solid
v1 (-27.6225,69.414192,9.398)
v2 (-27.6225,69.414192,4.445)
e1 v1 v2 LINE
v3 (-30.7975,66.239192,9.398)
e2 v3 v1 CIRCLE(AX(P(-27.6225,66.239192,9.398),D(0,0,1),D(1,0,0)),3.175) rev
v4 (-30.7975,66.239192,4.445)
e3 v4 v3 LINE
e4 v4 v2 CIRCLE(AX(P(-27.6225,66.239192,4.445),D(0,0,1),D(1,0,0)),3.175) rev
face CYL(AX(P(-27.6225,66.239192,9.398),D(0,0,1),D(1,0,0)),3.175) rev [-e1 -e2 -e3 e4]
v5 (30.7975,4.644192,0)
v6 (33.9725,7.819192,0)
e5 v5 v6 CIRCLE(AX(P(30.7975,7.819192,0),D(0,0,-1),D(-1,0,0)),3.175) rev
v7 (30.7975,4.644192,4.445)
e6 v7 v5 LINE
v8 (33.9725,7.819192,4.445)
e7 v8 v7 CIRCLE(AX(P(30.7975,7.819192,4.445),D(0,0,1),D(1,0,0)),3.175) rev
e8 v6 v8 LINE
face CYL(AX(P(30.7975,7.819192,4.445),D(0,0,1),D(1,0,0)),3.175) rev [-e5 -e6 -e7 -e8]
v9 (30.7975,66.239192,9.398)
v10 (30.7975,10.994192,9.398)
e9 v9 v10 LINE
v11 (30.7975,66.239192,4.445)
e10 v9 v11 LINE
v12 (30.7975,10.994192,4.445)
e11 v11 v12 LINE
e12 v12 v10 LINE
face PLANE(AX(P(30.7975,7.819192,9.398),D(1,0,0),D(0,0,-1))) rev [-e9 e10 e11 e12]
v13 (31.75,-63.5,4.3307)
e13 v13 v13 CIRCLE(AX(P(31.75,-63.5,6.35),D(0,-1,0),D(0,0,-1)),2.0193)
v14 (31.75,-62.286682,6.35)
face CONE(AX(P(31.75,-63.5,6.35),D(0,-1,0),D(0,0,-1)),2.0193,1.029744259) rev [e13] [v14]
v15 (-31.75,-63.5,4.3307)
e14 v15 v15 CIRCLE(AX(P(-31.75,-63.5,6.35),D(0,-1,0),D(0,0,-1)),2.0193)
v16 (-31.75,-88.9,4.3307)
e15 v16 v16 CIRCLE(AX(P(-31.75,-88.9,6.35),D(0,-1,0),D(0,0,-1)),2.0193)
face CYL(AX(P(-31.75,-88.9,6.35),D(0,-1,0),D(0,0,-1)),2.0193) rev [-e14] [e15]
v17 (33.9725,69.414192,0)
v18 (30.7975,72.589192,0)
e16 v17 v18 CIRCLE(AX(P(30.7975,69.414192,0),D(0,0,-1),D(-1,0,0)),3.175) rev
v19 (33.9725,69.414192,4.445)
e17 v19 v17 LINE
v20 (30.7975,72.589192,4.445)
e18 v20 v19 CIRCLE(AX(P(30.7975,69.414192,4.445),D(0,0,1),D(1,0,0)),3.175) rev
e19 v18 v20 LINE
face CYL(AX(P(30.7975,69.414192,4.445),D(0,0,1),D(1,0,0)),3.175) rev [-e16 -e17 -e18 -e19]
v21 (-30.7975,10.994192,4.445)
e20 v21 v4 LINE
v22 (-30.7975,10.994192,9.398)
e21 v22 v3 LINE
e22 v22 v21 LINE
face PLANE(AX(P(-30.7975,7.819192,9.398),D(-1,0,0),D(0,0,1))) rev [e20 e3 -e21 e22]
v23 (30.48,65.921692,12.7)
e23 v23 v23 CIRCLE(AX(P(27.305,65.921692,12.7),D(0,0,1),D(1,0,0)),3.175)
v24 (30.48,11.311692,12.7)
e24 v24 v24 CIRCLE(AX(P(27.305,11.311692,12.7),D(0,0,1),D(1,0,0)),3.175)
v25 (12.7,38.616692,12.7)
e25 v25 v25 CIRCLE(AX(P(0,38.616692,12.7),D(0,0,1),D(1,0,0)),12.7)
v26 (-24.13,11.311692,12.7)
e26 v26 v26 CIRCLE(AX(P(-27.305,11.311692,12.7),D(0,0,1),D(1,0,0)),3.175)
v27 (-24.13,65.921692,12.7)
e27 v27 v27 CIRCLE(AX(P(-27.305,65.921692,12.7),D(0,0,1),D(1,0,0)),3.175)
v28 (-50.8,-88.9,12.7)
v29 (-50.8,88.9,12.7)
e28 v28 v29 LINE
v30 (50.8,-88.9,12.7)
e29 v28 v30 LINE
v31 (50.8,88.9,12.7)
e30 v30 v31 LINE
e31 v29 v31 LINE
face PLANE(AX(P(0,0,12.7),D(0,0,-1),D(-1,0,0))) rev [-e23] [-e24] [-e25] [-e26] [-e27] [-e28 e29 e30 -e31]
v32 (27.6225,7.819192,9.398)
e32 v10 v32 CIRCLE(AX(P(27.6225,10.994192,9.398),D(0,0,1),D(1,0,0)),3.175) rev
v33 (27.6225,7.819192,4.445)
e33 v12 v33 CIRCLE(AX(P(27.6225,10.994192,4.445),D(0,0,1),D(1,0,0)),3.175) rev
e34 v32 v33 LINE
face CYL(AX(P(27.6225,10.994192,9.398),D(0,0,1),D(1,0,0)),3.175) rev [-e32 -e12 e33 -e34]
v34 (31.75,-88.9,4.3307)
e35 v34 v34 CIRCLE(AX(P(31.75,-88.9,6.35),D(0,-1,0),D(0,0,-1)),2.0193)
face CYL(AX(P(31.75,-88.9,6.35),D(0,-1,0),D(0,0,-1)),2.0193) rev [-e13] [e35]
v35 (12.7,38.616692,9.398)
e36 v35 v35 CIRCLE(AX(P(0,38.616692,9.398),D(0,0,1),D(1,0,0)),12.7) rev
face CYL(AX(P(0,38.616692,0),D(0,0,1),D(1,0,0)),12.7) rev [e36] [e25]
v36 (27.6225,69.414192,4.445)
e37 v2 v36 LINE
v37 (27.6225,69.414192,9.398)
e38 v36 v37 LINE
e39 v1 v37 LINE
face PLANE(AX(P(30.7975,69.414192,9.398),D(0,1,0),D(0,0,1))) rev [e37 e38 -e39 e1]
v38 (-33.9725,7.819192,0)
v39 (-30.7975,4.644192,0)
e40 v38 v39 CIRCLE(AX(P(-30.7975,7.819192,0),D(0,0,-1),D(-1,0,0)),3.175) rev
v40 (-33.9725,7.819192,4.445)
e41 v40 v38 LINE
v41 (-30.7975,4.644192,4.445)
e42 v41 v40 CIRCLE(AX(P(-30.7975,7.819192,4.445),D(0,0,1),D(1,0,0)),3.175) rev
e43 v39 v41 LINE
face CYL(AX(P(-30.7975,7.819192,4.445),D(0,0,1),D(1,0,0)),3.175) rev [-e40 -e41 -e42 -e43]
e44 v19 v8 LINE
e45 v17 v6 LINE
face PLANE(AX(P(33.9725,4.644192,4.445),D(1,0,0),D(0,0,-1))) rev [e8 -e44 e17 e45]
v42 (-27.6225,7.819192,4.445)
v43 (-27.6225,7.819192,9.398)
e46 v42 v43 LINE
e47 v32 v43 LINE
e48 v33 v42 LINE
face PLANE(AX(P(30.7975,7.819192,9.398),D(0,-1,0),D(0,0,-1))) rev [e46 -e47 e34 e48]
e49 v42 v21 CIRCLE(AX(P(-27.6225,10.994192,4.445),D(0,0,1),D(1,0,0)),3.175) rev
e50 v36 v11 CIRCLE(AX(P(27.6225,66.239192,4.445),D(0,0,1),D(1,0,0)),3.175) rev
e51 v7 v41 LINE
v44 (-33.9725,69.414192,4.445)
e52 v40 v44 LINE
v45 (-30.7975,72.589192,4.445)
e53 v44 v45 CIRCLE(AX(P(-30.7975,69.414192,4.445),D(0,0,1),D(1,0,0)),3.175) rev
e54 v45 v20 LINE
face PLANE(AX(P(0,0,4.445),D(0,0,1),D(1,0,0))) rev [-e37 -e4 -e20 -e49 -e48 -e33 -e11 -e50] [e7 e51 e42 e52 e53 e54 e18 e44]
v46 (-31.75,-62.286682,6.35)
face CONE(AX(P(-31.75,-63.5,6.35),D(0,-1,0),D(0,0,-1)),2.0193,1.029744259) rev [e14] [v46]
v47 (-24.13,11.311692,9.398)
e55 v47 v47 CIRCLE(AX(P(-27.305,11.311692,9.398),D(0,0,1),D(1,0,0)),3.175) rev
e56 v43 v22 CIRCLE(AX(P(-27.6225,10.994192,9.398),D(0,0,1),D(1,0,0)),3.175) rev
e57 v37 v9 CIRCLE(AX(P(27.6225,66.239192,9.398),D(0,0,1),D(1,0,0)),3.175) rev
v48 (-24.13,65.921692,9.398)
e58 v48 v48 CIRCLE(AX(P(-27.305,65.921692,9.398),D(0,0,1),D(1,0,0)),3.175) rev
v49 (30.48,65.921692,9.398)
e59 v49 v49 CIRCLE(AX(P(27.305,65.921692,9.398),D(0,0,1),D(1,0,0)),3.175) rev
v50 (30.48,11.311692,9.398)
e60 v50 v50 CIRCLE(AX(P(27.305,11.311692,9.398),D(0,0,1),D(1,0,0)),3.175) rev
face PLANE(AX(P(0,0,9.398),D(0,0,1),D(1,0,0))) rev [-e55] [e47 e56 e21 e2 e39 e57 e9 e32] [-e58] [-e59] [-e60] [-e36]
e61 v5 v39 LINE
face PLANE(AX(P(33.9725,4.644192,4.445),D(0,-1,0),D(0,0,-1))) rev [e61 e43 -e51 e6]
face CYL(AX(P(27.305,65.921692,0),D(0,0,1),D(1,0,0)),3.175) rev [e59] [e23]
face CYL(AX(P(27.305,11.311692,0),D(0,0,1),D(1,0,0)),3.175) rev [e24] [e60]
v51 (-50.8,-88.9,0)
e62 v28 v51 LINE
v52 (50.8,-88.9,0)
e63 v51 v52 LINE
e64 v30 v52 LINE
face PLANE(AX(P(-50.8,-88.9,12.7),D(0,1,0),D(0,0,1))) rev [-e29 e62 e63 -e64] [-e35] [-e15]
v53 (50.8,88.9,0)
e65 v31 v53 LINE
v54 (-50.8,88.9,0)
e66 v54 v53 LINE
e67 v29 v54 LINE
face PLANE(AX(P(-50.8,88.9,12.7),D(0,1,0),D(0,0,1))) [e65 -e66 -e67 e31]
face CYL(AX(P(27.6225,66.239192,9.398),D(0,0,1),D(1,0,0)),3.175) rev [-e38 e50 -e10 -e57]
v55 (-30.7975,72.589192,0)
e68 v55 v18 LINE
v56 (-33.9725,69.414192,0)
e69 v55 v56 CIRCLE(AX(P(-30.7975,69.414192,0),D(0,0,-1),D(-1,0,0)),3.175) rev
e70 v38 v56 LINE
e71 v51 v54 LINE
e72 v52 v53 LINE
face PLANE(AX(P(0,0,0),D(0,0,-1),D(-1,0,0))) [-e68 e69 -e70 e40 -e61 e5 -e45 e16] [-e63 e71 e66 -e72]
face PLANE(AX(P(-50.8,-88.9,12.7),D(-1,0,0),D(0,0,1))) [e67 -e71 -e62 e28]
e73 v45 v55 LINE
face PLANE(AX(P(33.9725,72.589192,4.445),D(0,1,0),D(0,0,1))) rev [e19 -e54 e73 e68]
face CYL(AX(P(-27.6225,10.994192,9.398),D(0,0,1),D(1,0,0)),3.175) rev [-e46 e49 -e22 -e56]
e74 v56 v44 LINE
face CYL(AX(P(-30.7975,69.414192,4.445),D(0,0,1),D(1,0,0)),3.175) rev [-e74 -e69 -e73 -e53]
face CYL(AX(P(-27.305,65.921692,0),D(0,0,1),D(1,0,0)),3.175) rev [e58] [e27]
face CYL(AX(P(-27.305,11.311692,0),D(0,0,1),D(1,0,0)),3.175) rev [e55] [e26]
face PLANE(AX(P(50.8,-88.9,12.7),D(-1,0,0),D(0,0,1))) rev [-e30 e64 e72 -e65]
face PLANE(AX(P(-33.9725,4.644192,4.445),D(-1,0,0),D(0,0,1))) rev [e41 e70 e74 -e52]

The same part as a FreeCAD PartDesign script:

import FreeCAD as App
import Part
import Sketcher
from FreeCAD import Vector
Q = App.Units.Quantity


def edges_at(feature, points):
    """Names of the edges that pass closest to the given points."""
    edges = feature.Shape.Edges
    near = lambda p: min(range(len(edges)), key=lambda i: edges[i].distToShape(Part.Vertex(*p))[0])
    return sorted({f"Edge{near(p) + 1}" for p in points})


def add_polygon(sketch, points):
    """Adds a closed chain of lines whose ends are joined by coincident constraints."""
    first, n = sketch.GeometryCount, len(points)
    for a, b in zip(points, points[1:] + points[:1]):
        sketch.addGeometry(Part.LineSegment(App.Vector(*a, 0), App.Vector(*b, 0)), False)
    for i in range(n):
        sketch.addConstraint(Sketcher.Constraint("Coincident", first + i, 2, first + (i + 1) % n, 1))

doc = App.newDocument("Part")
body = doc.addObject("PartDesign::Body", "Body")

sketch1 = doc.addObject("Sketcher::SketchObject", "Sketch")
body.addObject(sketch1)
sketch1.AttachmentSupport = (doc.XY_Plane, [""])
sketch1.MapMode = "FlatFace"
add_polygon(sketch1, [(-51, 89), (-51, -89), (51, -89), (51, 89)])
sketch1.addConstraint([
    Sketcher.Constraint("Vertical", 0),
    Sketcher.Constraint("Horizontal", 1),
    Sketcher.Constraint("Vertical", 2),
    Sketcher.Constraint("Horizontal", 3),
    Sketcher.Constraint("Symmetric", 0, 2, 2, 2, -1, 1),
    Sketcher.Constraint("DistanceX", 1, 1, 1, 2, Q("4 in")),
    Sketcher.Constraint("DistanceY", 0, 2, 0, 1, Q("7 in")),
])
pad1 = doc.addObject("PartDesign::Pad", "Pad")
body.addObject(pad1)
pad1.Profile = sketch1
pad1.Length = Q("0.5 in")

sketch2 = doc.addObject("Sketcher::SketchObject", "Sketch001")
body.addObject(sketch2)
sketch2.AttachmentSupport = (doc.XZ_Plane, [""])
sketch2.MapMode = "FlatFace"
sketch2.AttachmentOffset = App.Placement(Vector(0, 0, 3.5 * 25.4), App.Rotation())
sketch2.addGeometry([
    Part.Circle(Vector(-31.8, 6.3, 0), Vector(0, 0, 1), 2),
    Part.Circle(Vector(31.8, 6.3, 0), Vector(0, 0, 1), 2),
], False)
sketch2.addConstraint([
    Sketcher.Constraint("Equal", 0, 1),
    Sketcher.Constraint("Symmetric", 0, 3, 1, 3, -2),
    Sketcher.Constraint("Diameter", 0, Q("0.159 in")),
    Sketcher.Constraint("DistanceX", 0, 3, 1, 3, Q("2.5 in")),
    Sketcher.Constraint("DistanceY", -1, 1, 0, 3, Q("0.25 in")),
])
doc.recompute()
hole = doc.addObject("PartDesign::Hole", "Hole")
body.addObject(hole)
hole.Profile = sketch2
hole.ThreadType = "None"
hole.Diameter = Q("0.159 in")
hole.DepthType = "Dimension"
hole.Depth = Q("1 in")
hole.DrillPoint = "Angled"
hole.DrillPointAngle = 118

sketch3 = doc.addObject("Sketcher::SketchObject", "Sketch002")
body.addObject(sketch3)
sketch3.AttachmentSupport = (doc.XY_Plane, [""])
sketch3.MapMode = "FlatFace"
sketch3.AttachmentOffset = App.Placement(Vector(0, 0, 0.5 * 25.4), App.Rotation())
sketch3.addGeometry([
    Part.Circle(Vector(0, 38.6, 0), Vector(0, 0, 1), 12.7),
    Part.Circle(Vector(-27.3, 65.9, 0), Vector(0, 0, 1), 3.2),
    Part.Circle(Vector(27.3, 65.9, 0), Vector(0, 0, 1), 3.2),
    Part.Circle(Vector(27.3, 11.3, 0), Vector(0, 0, 1), 3.2),
    Part.Circle(Vector(-27.3, 11.3, 0), Vector(0, 0, 1), 3.2),
], False)
sketch3.addConstraint([
    Sketcher.Constraint("Equal", 1, 2),
    Sketcher.Constraint("Equal", 2, 3),
    Sketcher.Constraint("Equal", 3, 4),
    Sketcher.Constraint("Symmetric", 1, 3, 2, 3, -2),
    Sketcher.Constraint("Symmetric", 3, 3, 4, 3, -2),
    Sketcher.Constraint("PointOnObject", 0, 3, -2),
    Sketcher.Constraint("Vertical", 2, 3, 3, 3),
    Sketcher.Constraint("Diameter", 0, Q("1 in")),
    Sketcher.Constraint("Diameter", 1, Q("0.25 in")),
    Sketcher.Constraint("DistanceX", 1, 3, 2, 3, Q("2.15 in")),
    Sketcher.Constraint("DistanceY", 3, 3, 2, 3, Q("2.15 in")),
    Sketcher.Constraint("DistanceY", 0, 3, 1, 3, Q("1.075 in")),
    Sketcher.Constraint("DistanceY", -1, 1, 0, 3, 38.616692),
])
pocket1 = doc.addObject("PartDesign::Pocket", "Pocket")
body.addObject(pocket1)
pocket1.Profile = sketch3
pocket1.Type = "ThroughAll"

sketch4 = doc.addObject("Sketcher::SketchObject", "Sketch003")
body.addObject(sketch4)
sketch4.AttachmentSupport = (doc.XY_Plane, [""])
sketch4.MapMode = "FlatFace"
add_polygon(sketch4, [(31, 69), (31, 8), (-31, 8), (-31, 69)])
sketch4.addConstraint([
    Sketcher.Constraint("Vertical", 0),
    Sketcher.Constraint("Horizontal", 1),
    Sketcher.Constraint("Vertical", 2),
    Sketcher.Constraint("Horizontal", 3),
    Sketcher.Constraint("Equal", 3, 0),
    Sketcher.Constraint("DistanceX", 1, 2, 1, 1, Q("2.425 in")),
    Sketcher.Constraint("DistanceX", -1, 1, 0, 2, Q("1.2125 in")),
    Sketcher.Constraint("DistanceY", -1, 1, 0, 2, 7.819192),
])
pocket2 = doc.addObject("PartDesign::Pocket", "Pocket001")
body.addObject(pocket2)
pocket2.Profile = sketch4
pocket2.Length = Q("0.37 in")
pocket2.Reversed = True
doc.recompute()

fillet = doc.addObject("PartDesign::Fillet", "Fillet")
body.addObject(fillet)
fillet.Base = (pocket2, edges_at(pocket2, [
    (-30.797, 69.414, 4.699),
    (-30.797, 7.819, 4.699),
    (30.797, 7.819, 4.699),
    (30.797, 69.414, 4.699),
]))
fillet.Radius = Q("0.125 in")

sketch5 = doc.addObject("Sketcher::SketchObject", "Sketch004")
body.addObject(sketch5)
sketch5.AttachmentSupport = (doc.XY_Plane, [""])
sketch5.MapMode = "FlatFace"
add_polygon(sketch5, [(34, 73), (34, 5), (-34, 5), (-34, 73)])
sketch5.addConstraint([
    Sketcher.Constraint("Vertical", 0),
    Sketcher.Constraint("Horizontal", 1),
    Sketcher.Constraint("Vertical", 2),
    Sketcher.Constraint("Horizontal", 3),
    Sketcher.Constraint("Equal", 3, 0),
    Sketcher.Constraint("DistanceX", 1, 2, 1, 1, Q("2.675 in")),
    Sketcher.Constraint("DistanceX", -1, 1, 0, 2, Q("1.3375 in")),
    Sketcher.Constraint("DistanceY", -1, 1, 0, 2, 4.644192),
])
pocket3 = doc.addObject("PartDesign::Pocket", "Pocket002")
body.addObject(pocket3)
pocket3.Profile = sketch5
pocket3.Length = Q("0.175 in")
pocket3.Reversed = True
doc.recompute()

fillet2 = doc.addObject("PartDesign::Fillet", "Fillet001")
body.addObject(fillet2)
fillet2.Base = (pocket3, edges_at(pocket3, [
    (-33.972, 72.589, 2.223),
    (-33.972, 4.644, 2.223),
    (33.972, 4.644, 2.223),
    (33.972, 72.589, 2.223),
]))
fillet2.Radius = Q("0.125 in")

doc.recompute()
